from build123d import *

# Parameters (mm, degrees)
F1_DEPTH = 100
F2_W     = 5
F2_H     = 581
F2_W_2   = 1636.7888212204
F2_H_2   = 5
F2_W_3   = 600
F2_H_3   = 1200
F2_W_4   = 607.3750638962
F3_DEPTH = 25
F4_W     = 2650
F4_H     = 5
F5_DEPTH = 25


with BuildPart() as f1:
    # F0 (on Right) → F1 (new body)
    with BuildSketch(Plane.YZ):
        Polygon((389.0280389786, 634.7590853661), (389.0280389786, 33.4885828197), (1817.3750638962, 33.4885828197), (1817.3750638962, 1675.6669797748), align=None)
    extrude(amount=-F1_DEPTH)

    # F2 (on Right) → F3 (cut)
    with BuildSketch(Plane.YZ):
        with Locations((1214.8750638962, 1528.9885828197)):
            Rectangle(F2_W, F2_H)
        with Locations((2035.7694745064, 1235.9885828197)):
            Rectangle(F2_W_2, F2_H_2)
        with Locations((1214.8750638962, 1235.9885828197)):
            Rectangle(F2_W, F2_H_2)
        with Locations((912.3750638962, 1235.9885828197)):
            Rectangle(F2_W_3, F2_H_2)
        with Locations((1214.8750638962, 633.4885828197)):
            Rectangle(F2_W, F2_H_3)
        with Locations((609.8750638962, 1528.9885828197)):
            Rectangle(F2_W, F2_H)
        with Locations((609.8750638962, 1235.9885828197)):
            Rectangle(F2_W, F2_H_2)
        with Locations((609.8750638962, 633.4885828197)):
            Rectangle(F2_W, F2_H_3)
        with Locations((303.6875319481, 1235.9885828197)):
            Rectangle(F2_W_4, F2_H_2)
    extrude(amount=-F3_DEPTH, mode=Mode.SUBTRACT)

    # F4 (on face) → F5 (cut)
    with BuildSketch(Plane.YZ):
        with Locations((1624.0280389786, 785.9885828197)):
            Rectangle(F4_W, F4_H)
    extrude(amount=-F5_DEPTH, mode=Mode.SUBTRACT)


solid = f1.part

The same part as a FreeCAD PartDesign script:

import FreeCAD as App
import Part
import Sketcher

doc = App.newDocument("Part")
body = doc.addObject("PartDesign::Body", "Body")

sketch1 = body.newObject("Sketcher::SketchObject", "Sketch")
sketch1.AttachmentSupport = (doc.getObject("YZ_Plane"), [""])
sketch1.MapMode = "FlatFace"
sketch1.addGeometry([
    Part.LineSegment(App.Vector(389.028039, 634.759085, 0), App.Vector(389.028039, 33.488583, 0)),
    Part.LineSegment(App.Vector(389.028039, 33.488583, 0), App.Vector(1817.375064, 33.488583, 0)),
    Part.LineSegment(App.Vector(1817.375064, 33.488583, 0), App.Vector(1817.375064, 1675.66698, 0)),
    Part.LineSegment(App.Vector(1817.375064, 1675.66698, 0), App.Vector(389.028039, 634.759085, 0)),
], False)
sketch1.addConstraint([
    Sketcher.Constraint("Coincident", 0, 2, 1, 1),
    Sketcher.Constraint("Coincident", 1, 2, 2, 1),
    Sketcher.Constraint("Coincident", 2, 2, 3, 1),
    Sketcher.Constraint("Coincident", 3, 2, 0, 1),
    Sketcher.Constraint("Vertical", 0),
    Sketcher.Constraint("Horizontal", 1),
    Sketcher.Constraint("Vertical", 2),
    Sketcher.Constraint("DistanceX", 1, 1, 1, 2, 1428.347025),
    Sketcher.Constraint("DistanceY", 0, 2, 0, 1, 601.270503),
    Sketcher.Constraint("DistanceY", 2, 1, 2, 2, 1642.178397),
    Sketcher.Constraint("DistanceX", -1, 1, 0, 2, 389.028039),
    Sketcher.Constraint("DistanceY", -1, 1, 2, 2, 1675.66698),
])
pad1 = body.newObject("PartDesign::Pad", "Pad")
pad1.Profile = sketch1
pad1.Length = 100
pad1.Reversed = True

sketch2 = body.newObject("Sketcher::SketchObject", "Sketch001")
sketch2.AttachmentSupport = (doc.getObject("YZ_Plane"), [""])
sketch2.MapMode = "FlatFace"
sketch2.addGeometry([
    Part.LineSegment(App.Vector(1212.375064, 1819.488583, 0), App.Vector(1212.375064, 1238.488583, 0)),
    Part.LineSegment(App.Vector(1212.375064, 1238.488583, 0), App.Vector(612.375064, 1238.488583, 0)),
    Part.LineSegment(App.Vector(612.375064, 1238.488583, 0), App.Vector(612.375064, 1819.488583, 0)),
    Part.LineSegment(App.Vector(612.375064, 1819.488583, 0), App.Vector(607.375064, 1819.488583, 0)),
    Part.LineSegment(App.Vector(607.375064, 1819.488583, 0), App.Vector(607.375064, 1238.488583, 0)),
    Part.LineSegment(App.Vector(607.375064, 1238.488583, 0), App.Vector(0, 1238.488583, 0)),
    Part.LineSegment(App.Vector(0, 1238.488583, 0), App.Vector(0, 1233.488583, 0)),
    Part.LineSegment(App.Vector(0, 1233.488583, 0), App.Vector(607.375064, 1233.488583, 0)),
    Part.LineSegment(App.Vector(607.375064, 1233.488583, 0), App.Vector(607.375064, 33.488583, 0)),
    Part.LineSegment(App.Vector(607.375064, 33.488583, 0), App.Vector(612.375064, 33.488583, 0)),
    Part.LineSegment(App.Vector(612.375064, 33.488583, 0), App.Vector(612.375064, 1233.488583, 0)),
    Part.LineSegment(App.Vector(612.375064, 1233.488583, 0), App.Vector(1212.375064, 1233.488583, 0)),
    Part.LineSegment(App.Vector(1212.375064, 1233.488583, 0), App.Vector(1212.375064, 33.488583, 0)),
    Part.LineSegment(App.Vector(1212.375064, 33.488583, 0), App.Vector(1217.375064, 33.488583, 0)),
    Part.LineSegment(App.Vector(1217.375064, 33.488583, 0), App.Vector(1217.375064, 1233.488583, 0)),
    Part.LineSegment(App.Vector(1217.375064, 1233.488583, 0), App.Vector(2854.163885, 1233.488583, 0)),
    Part.LineSegment(App.Vector(2854.163885, 1233.488583, 0), App.Vector(2854.163885, 1238.488583, 0)),
    Part.LineSegment(App.Vector(2854.163885, 1238.488583, 0), App.Vector(1217.375064, 1238.488583, 0)),
    Part.LineSegment(App.Vector(1217.375064, 1238.488583, 0), App.Vector(1217.375064, 1819.488583, 0)),
    Part.LineSegment(App.Vector(1217.375064, 1819.488583, 0), App.Vector(1212.375064, 1819.488583, 0)),
], False)
sketch2.addConstraint([
    Sketcher.Constraint("Coincident", 0, 2, 1, 1),
    Sketcher.Constraint("Coincident", 1, 2, 2, 1),
    Sketcher.Constraint("Coincident", 2, 2, 3, 1),
    Sketcher.Constraint("Coincident", 3, 2, 4, 1),
    Sketcher.Constraint("Coincident", 4, 2, 5, 1),
    Sketcher.Constraint("Coincident", 5, 2, 6, 1),
    Sketcher.Constraint("Coincident", 6, 2, 7, 1),
    Sketcher.Constraint("Coincident", 7, 2, 8, 1),
    Sketcher.Constraint("Coincident", 8, 2, 9, 1),
    Sketcher.Constraint("Coincident", 9, 2, 10, 1),
    Sketcher.Constraint("Coincident", 10, 2, 11, 1),
    Sketcher.Constraint("Coincident", 11, 2, 12, 1),
    Sketcher.Constraint("Coincident", 12, 2, 13, 1),
    Sketcher.Constraint("Coincident", 13, 2, 14, 1),
    Sketcher.Constraint("Coincident", 14, 2, 15, 1),
    Sketcher.Constraint("Coincident", 15, 2, 16, 1),
    Sketcher.Constraint("Coincident", 16, 2, 17, 1),
    Sketcher.Constraint("Coincident", 17, 2, 18, 1),
    Sketcher.Constraint("Coincident", 18, 2, 19, 1),
    Sketcher.Constraint("Coincident", 19, 2, 0, 1),
    Sketcher.Constraint("Vertical", 0),
    Sketcher.Constraint("Horizontal", 1),
    Sketcher.Constraint("Vertical", 2),
    Sketcher.Constraint("Horizontal", 3),
    Sketcher.Constraint("Vertical", 4),
    Sketcher.Constraint("Horizontal", 5),
    Sketcher.Constraint("Vertical", 6),
    Sketcher.Constraint("Horizontal", 7),
    Sketcher.Constraint("Vertical", 8),
    Sketcher.Constraint("Horizontal", 9),
    Sketcher.Constraint("Vertical", 10),
    Sketcher.Constraint("Horizontal", 11),
    Sketcher.Constraint("Vertical", 12),
    Sketcher.Constraint("Horizontal", 13),
    Sketcher.Constraint("Vertical", 14),
    Sketcher.Constraint("Horizontal", 15),
    Sketcher.Constraint("Vertical", 16),
    Sketcher.Constraint("Horizontal", 17),
    Sketcher.Constraint("Vertical", 18),
    Sketcher.Constraint("Horizontal", 19),
    Sketcher.Constraint("PointOnObject", 5, 2, -2),
    Sketcher.Constraint("Horizontal", 1, 2, 4, 2),
    Sketcher.Constraint("Horizontal", 7, 2, 10, 2),
    Sketcher.Constraint("Horizontal", 9, 2, 12, 2),
    Sketcher.Constraint("Horizontal", 11, 2, 14, 2),
    Sketcher.Constraint("Horizontal", 5, 2, 16, 2),
    Sketcher.Constraint("Horizontal", 3, 2, 18, 2),
    Sketcher.Constraint("Vertical", 4, 2, 7, 2),
    Sketcher.Constraint("Vertical", 2, 2, 9, 2),
    Sketcher.Constraint("Vertical", 0, 2, 11, 2),
    Sketcher.Constraint("Vertical", 14, 2, 17, 2),
    Sketcher.Constraint("Equal", 9, 13),
    Sketcher.Constraint("Equal", 19, 6),
    Sketcher.Constraint("DistanceX", 1, 2, 1, 1, 600.0),
    Sketcher.Constraint("DistanceX", 3, 2, 3, 1, 5.0),
    Sketcher.Constraint("DistanceY", 0, 2, 0, 1, 581.0),
    Sketcher.Constraint("DistanceY", 8, 2, 8, 1, 1200.0),
    Sketcher.Constraint("DistanceX", 15, 1, 15, 2, 1636.788821),
    Sketcher.Constraint("DistanceX", 5, 2, 5, 1, 607.375064),
    Sketcher.Constraint("DistanceY", -1, 1, 0, 2, 1238.488583),
])
pocket1 = body.newObject("PartDesign::Pocket", "Pocket")
pocket1.Profile = sketch2
pocket1.Length = 25

sketch3 = body.newObject("Sketcher::SketchObject", "Sketch002")
sketch3.AttachmentSupport = (doc.getObject("YZ_Plane"), [""])
sketch3.MapMode = "FlatFace"
sketch3.addGeometry([
    Part.LineSegment(App.Vector(299.028039, 788.488583, 0), App.Vector(299.028039, 783.488583, 0)),
    Part.LineSegment(App.Vector(299.028039, 783.488583, 0), App.Vector(2949.028039, 783.488583, 0)),
    Part.LineSegment(App.Vector(2949.028039, 783.488583, 0), App.Vector(2949.028039, 788.488583, 0)),
    Part.LineSegment(App.Vector(2949.028039, 788.488583, 0), App.Vector(299.028039, 788.488583, 0)),
], False)
sketch3.addConstraint([
    Sketcher.Constraint("Coincident", 0, 2, 1, 1),
    Sketcher.Constraint("Coincident", 1, 2, 2, 1),
    Sketcher.Constraint("Coincident", 2, 2, 3, 1),
    Sketcher.Constraint("Coincident", 3, 2, 0, 1),
    Sketcher.Constraint("Vertical", 0),
    Sketcher.Constraint("Horizontal", 1),
    Sketcher.Constraint("Vertical", 2),
    Sketcher.Constraint("Horizontal", 3),
    Sketcher.Constraint("DistanceX", 1, 1, 1, 2, 2650.0),
    Sketcher.Constraint("DistanceY", 0, 2, 0, 1, 5.0),
    Sketcher.Constraint("DistanceX", -1, 1, 0, 2, 299.028039),
    Sketcher.Constraint("DistanceY", -1, 1, 0, 2, 783.488583),
])
pocket2 = body.newObject("PartDesign::Pocket", "Pocket001")
pocket2.Profile = sketch3
pocket2.Length = 25

doc.recompute()
